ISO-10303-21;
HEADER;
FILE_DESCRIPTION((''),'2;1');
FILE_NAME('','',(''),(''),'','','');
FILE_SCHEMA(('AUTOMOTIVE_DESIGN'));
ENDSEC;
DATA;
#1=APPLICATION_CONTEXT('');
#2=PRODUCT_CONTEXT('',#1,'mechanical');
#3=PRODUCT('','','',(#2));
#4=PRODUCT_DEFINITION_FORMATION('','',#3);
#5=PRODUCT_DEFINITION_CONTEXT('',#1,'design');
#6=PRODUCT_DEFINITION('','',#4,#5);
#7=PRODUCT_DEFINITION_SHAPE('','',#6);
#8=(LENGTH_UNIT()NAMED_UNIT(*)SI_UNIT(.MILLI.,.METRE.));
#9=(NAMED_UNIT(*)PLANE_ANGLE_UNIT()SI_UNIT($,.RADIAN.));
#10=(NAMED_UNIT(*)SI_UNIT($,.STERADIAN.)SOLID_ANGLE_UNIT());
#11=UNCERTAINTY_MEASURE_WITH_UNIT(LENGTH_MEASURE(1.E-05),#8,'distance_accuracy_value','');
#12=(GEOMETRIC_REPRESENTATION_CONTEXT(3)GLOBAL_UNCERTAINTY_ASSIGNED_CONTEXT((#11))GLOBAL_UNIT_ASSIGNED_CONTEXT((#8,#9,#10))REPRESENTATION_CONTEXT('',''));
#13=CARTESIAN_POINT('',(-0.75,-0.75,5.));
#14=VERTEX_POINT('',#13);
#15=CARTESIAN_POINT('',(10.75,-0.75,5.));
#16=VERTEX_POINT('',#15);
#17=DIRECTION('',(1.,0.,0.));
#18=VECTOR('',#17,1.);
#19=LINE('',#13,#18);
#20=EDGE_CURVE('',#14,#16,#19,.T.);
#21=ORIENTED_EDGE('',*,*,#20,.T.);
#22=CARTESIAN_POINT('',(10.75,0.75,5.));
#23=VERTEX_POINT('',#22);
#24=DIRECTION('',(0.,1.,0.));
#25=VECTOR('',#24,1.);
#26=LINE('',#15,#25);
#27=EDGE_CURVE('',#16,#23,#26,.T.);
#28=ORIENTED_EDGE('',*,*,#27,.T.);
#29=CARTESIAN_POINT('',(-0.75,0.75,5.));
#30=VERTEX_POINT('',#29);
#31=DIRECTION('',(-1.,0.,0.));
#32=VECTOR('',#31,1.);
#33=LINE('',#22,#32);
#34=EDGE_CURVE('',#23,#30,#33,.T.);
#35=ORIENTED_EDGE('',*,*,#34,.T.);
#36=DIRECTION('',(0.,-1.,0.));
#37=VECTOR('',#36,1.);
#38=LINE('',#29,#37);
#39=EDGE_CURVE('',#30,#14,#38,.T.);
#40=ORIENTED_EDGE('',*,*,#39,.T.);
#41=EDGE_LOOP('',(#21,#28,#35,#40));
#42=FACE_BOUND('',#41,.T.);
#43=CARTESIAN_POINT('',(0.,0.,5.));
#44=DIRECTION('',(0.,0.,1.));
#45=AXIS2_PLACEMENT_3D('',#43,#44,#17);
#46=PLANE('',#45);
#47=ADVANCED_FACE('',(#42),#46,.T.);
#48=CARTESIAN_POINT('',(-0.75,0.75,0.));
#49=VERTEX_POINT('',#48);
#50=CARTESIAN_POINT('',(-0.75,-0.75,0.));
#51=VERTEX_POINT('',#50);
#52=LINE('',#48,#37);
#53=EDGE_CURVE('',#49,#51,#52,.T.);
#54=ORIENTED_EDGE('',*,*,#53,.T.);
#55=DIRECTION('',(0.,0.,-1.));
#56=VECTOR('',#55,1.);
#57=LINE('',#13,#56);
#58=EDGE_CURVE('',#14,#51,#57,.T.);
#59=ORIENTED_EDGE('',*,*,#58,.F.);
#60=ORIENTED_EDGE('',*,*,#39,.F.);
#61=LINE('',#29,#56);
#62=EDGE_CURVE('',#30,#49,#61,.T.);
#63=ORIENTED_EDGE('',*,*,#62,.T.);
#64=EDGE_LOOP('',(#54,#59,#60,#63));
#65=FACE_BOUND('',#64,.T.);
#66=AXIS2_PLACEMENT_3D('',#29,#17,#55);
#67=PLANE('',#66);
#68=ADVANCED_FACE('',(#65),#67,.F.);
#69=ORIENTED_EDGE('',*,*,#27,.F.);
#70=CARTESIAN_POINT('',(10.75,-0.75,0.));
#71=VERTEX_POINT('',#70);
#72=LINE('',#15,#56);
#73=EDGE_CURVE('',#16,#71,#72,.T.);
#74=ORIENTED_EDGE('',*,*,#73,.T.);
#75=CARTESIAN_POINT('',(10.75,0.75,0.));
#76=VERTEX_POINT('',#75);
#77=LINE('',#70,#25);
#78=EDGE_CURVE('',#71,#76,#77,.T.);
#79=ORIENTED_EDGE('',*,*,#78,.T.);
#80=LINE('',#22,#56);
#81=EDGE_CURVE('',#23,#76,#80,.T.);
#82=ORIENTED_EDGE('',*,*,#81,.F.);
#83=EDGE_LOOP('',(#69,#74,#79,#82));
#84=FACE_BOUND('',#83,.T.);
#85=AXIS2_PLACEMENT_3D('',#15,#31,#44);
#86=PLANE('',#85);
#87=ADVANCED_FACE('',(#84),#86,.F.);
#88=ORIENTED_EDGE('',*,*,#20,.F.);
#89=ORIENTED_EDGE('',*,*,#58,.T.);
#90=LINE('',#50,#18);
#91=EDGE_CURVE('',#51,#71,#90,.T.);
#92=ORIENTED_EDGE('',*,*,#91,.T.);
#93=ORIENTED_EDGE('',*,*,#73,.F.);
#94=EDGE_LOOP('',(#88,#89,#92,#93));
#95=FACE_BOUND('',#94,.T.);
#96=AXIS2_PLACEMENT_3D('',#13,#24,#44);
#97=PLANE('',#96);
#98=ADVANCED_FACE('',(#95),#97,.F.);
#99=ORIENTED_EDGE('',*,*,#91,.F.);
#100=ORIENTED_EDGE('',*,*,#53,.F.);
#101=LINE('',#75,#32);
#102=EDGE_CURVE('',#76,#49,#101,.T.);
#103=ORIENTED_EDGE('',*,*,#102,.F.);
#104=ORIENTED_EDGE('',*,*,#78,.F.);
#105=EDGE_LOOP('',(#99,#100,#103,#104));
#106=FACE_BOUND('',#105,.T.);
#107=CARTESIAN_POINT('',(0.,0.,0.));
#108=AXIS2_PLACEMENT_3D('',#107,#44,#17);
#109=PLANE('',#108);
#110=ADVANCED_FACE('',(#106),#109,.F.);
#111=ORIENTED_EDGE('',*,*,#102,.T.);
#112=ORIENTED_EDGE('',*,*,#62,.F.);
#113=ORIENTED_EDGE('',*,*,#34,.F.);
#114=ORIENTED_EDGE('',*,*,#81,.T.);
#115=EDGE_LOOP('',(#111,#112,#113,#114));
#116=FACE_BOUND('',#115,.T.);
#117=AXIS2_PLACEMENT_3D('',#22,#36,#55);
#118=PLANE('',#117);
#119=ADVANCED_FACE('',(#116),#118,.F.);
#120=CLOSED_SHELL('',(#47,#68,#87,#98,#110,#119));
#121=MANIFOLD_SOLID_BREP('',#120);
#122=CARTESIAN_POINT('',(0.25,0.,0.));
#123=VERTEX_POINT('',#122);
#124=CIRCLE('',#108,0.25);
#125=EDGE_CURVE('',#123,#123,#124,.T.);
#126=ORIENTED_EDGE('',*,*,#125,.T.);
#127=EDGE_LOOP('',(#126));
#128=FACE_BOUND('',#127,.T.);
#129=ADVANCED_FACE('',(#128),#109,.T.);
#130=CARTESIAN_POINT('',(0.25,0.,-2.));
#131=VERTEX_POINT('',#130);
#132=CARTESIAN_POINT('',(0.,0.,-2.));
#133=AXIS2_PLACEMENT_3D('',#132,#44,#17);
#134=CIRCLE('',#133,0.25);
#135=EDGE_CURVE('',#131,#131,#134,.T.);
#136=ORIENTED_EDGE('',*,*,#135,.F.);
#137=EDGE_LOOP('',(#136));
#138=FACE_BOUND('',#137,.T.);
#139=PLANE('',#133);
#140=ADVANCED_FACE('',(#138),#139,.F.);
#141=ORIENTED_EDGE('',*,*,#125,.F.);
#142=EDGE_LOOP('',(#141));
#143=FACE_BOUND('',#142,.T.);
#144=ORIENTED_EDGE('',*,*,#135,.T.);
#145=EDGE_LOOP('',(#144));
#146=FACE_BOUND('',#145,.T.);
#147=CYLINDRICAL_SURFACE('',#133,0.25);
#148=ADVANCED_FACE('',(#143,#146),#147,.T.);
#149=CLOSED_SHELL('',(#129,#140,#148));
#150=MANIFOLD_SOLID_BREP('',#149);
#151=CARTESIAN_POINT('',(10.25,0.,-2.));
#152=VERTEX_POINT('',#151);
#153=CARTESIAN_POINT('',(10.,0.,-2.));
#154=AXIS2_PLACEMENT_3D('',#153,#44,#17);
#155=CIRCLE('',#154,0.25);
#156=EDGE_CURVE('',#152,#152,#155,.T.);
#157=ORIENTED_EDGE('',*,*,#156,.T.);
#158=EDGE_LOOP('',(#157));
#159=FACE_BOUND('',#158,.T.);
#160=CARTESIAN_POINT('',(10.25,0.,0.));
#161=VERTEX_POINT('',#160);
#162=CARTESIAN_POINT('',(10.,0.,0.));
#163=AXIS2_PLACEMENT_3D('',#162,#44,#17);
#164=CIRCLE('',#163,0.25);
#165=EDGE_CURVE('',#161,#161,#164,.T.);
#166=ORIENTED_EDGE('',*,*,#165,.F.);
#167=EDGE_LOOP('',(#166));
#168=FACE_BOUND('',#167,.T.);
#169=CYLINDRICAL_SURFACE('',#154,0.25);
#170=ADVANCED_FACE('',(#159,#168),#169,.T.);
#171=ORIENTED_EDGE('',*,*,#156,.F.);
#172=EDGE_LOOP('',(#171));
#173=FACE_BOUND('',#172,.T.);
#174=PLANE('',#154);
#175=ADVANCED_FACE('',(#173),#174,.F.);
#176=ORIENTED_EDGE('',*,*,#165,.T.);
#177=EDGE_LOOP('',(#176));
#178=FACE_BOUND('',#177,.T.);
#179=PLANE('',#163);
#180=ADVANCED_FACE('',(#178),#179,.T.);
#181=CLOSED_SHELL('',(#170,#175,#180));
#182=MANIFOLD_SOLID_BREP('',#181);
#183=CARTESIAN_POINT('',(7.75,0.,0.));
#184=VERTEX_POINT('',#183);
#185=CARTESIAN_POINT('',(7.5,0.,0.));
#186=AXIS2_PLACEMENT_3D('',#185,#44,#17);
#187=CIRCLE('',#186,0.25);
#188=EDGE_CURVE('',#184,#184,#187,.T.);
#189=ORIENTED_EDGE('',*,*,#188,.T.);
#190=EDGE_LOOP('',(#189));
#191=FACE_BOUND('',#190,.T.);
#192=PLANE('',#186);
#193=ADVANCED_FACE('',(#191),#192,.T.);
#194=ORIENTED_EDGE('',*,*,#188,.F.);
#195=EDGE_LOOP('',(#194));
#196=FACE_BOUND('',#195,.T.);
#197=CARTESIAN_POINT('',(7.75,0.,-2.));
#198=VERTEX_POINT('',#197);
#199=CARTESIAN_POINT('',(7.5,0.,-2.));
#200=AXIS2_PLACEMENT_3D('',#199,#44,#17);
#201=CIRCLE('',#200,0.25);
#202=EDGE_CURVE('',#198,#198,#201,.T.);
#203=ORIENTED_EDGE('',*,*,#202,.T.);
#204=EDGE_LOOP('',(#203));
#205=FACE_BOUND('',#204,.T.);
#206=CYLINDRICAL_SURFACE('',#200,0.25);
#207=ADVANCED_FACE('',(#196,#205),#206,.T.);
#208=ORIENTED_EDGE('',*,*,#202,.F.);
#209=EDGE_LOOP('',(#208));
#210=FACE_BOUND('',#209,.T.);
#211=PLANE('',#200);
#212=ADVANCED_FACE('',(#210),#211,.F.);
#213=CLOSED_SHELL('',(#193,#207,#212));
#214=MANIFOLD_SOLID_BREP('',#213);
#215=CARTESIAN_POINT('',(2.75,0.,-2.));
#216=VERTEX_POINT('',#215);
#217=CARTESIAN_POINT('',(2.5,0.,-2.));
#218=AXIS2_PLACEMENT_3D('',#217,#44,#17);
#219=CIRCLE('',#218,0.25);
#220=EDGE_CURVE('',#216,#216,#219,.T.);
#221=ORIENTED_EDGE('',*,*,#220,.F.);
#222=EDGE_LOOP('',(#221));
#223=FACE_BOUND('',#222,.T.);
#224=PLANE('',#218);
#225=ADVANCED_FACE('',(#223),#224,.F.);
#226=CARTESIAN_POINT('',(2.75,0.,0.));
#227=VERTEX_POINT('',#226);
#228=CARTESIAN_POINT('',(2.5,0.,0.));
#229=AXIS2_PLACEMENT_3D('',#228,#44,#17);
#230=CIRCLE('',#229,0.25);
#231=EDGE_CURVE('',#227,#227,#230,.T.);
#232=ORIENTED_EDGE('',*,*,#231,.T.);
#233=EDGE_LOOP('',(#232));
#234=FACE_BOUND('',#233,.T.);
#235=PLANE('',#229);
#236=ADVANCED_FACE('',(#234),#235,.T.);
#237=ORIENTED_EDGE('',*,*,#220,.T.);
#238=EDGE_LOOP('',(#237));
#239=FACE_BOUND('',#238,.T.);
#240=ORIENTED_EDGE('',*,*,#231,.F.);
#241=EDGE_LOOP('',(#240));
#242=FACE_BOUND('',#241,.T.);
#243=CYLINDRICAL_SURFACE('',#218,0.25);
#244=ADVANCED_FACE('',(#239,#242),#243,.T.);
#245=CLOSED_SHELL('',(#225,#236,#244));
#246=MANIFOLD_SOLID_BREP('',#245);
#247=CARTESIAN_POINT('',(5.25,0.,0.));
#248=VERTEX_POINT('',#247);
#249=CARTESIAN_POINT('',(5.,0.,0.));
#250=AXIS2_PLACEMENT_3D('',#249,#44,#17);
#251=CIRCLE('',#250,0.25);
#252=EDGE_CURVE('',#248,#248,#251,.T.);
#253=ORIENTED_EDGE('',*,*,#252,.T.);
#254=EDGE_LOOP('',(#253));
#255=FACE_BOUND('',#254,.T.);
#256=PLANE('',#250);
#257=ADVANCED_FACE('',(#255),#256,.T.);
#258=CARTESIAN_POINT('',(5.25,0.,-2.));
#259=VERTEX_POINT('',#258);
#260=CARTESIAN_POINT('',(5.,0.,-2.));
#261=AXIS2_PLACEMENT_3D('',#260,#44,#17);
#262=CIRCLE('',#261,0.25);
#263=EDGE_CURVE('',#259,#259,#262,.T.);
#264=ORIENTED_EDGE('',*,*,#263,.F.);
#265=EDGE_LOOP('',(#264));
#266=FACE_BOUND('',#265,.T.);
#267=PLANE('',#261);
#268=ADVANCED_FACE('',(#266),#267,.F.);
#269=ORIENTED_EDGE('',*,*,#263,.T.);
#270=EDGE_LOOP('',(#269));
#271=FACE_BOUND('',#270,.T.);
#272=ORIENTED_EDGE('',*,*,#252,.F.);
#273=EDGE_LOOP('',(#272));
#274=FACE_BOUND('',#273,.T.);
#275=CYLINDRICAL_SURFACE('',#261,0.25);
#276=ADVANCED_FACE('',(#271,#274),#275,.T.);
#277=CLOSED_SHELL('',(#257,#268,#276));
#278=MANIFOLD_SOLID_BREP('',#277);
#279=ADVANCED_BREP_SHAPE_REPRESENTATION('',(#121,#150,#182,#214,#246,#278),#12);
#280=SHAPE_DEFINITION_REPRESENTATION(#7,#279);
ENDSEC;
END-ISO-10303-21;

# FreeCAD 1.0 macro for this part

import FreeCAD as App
import Part
import Sketcher

doc = App.newDocument("Part")
params = doc.addObject("Spreadsheet::Sheet", "Params")
for row, (alias, value) in enumerate([
    ("sketch1_width", "11.5 mm"),
    ("sketch1_height", "1.5 mm"),
    ("pad1_length", "5 mm"),
    ("sketch2_diameter", "0.5 mm"),
    ("pad2_length", "2 mm"),
    ("sketch3_diameter", "0.5 mm"),
    ("pad3_length", "2 mm"),
    ("sketch4_diameter", "0.5 mm"),
    ("pad4_length", "2 mm"),
    ("sketch5_diameter", "0.5 mm"),
    ("pad5_length", "2 mm"),
    ("sketch6_diameter", "0.5 mm"),
    ("pad6_length", "2 mm"),
], start=1):
    params.set(f"A{row}", alias)
    params.set(f"B{row}", "=" + value)
    params.setAlias(f"B{row}", alias)

body = doc.addObject("PartDesign::Body", "Body")

# Sketch on XY plane
sketch1 = body.newObject("Sketcher::SketchObject", "Sketch")
sketch1.AttachmentSupport = (doc.getObject("XY_Plane"), [""])
sketch1.MapMode = "FlatFace"
sketch1.addGeometry([
    Part.LineSegment(App.Vector(-0.75, 0.75, 0), App.Vector(-0.75, -0.75, 0)),
    Part.LineSegment(App.Vector(-0.75, -0.75, 0), App.Vector(10.75, -0.75, 0)),
    Part.LineSegment(App.Vector(10.75, -0.75, 0), App.Vector(10.75, 0.75, 0)),
    Part.LineSegment(App.Vector(10.75, 0.75, 0), App.Vector(-0.75, 0.75, 0)),
], False)
sketch1.addConstraint([
    Sketcher.Constraint("Coincident", 0, 2, 1, 1),
    Sketcher.Constraint("Coincident", 1, 2, 2, 1),
    Sketcher.Constraint("Coincident", 2, 2, 3, 1),
    Sketcher.Constraint("Coincident", 3, 2, 0, 1),
    Sketcher.Constraint("Vertical", 0),
    Sketcher.Constraint("Horizontal", 1),
    Sketcher.Constraint("Vertical", 2),
    Sketcher.Constraint("Horizontal", 3),
    Sketcher.Constraint("DistanceX", 1, 1, 1, 2, 11.5),
    Sketcher.Constraint("DistanceY", 0, 2, 0, 1, 1.5),
    Sketcher.Constraint("DistanceX", 0, 2, -1, 1, 0.75),
    Sketcher.Constraint("DistanceY", 0, 2, -1, 1, 0.75),
])
sketch1.setExpression("Constraints[8]", "Params.sketch1_width")
sketch1.setExpression("Constraints[9]", "Params.sketch1_height")
pad1 = body.newObject("PartDesign::Pad", "Pad")
pad1.Profile = sketch1
pad1.setExpression("Length", "Params.pad1_length")
body2 = doc.addObject("PartDesign::Body", "Body001")

# Sketch on XY plane
sketch2 = body2.newObject("Sketcher::SketchObject", "Sketch001")
sketch2.AttachmentSupport = (doc.getObject("XY_Plane001"), [""])
sketch2.MapMode = "FlatFace"
sketch2.addGeometry(Part.Circle(App.Vector(0, 0, 0), App.Vector(0, 0, 1), 0.25), False)
sketch2.addConstraint([
    Sketcher.Constraint("Coincident", 0, 3, -1, 1),
    Sketcher.Constraint("Diameter", 0, 0.5),
])
sketch2.setExpression("Constraints[1]", "Params.sketch2_diameter")
pad2 = body2.newObject("PartDesign::Pad", "Pad001")
pad2.Profile = sketch2
pad2.setExpression("Length", "Params.pad2_length")
pad2.Reversed = True
body3 = doc.addObject("PartDesign::Body", "Body002")

# Sketch on XY plane
sketch3 = body3.newObject("Sketcher::SketchObject", "Sketch002")
sketch3.AttachmentSupport = (doc.getObject("XY_Plane002"), [""])
sketch3.MapMode = "FlatFace"
sketch3.addGeometry(Part.Circle(App.Vector(2.5, 0, 0), App.Vector(0, 0, 1), 0.25), False)
sketch3.addConstraint([
    Sketcher.Constraint("PointOnObject", 0, 3, -1),
    Sketcher.Constraint("Diameter", 0, 0.5),
    Sketcher.Constraint("DistanceX", -1, 1, 0, 3, 2.5),
])
sketch3.setExpression("Constraints[1]", "Params.sketch3_diameter")
pad3 = body3.newObject("PartDesign::Pad", "Pad002")
pad3.Profile = sketch3
pad3.setExpression("Length", "Params.pad3_length")
pad3.Reversed = True
body4 = doc.addObject("PartDesign::Body", "Body003")

# Sketch on XY plane
sketch4 = body4.newObject("Sketcher::SketchObject", "Sketch003")
sketch4.AttachmentSupport = (doc.getObject("XY_Plane003"), [""])
sketch4.MapMode = "FlatFace"
sketch4.addGeometry(Part.Circle(App.Vector(5, 0, 0), App.Vector(0, 0, 1), 0.25), False)
sketch4.addConstraint([
    Sketcher.Constraint("PointOnObject", 0, 3, -1),
    Sketcher.Constraint("Diameter", 0, 0.5),
    Sketcher.Constraint("DistanceX", -1, 1, 0, 3, 5.0),
])
sketch4.setExpression("Constraints[1]", "Params.sketch4_diameter")
pad4 = body4.newObject("PartDesign::Pad", "Pad003")
pad4.Profile = sketch4
pad4.setExpression("Length", "Params.pad4_length")
pad4.Reversed = True
body5 = doc.addObject("PartDesign::Body", "Body004")

# Sketch on XY plane
sketch5 = body5.newObject("Sketcher::SketchObject", "Sketch004")
sketch5.AttachmentSupport = (doc.getObject("XY_Plane004"), [""])
sketch5.MapMode = "FlatFace"
sketch5.addGeometry(Part.Circle(App.Vector(7.5, 0, 0), App.Vector(0, 0, 1), 0.25), False)
sketch5.addConstraint([
    Sketcher.Constraint("PointOnObject", 0, 3, -1),
    Sketcher.Constraint("Diameter", 0, 0.5),
    Sketcher.Constraint("DistanceX", -1, 1, 0, 3, 7.5),
])
sketch5.setExpression("Constraints[1]", "Params.sketch5_diameter")
pad5 = body5.newObject("PartDesign::Pad", "Pad004")
pad5.Profile = sketch5
pad5.setExpression("Length", "Params.pad5_length")
pad5.Reversed = True
body6 = doc.addObject("PartDesign::Body", "Body005")

# Sketch on XY plane
sketch6 = body6.newObject("Sketcher::SketchObject", "Sketch005")
sketch6.AttachmentSupport = (doc.getObject("XY_Plane005"), [""])
sketch6.MapMode = "FlatFace"
sketch6.addGeometry(Part.Circle(App.Vector(10, 0, 0), App.Vector(0, 0, 1), 0.25), False)
sketch6.addConstraint([
    Sketcher.Constraint("PointOnObject", 0, 3, -1),
    Sketcher.Constraint("Diameter", 0, 0.5),
    Sketcher.Constraint("DistanceX", -1, 1, 0, 3, 10.0),
])
sketch6.setExpression("Constraints[1]", "Params.sketch6_diameter")
pad6 = body6.newObject("PartDesign::Pad", "Pad005")
pad6.Profile = sketch6
pad6.setExpression("Length", "Params.pad6_length")
pad6.Reversed = True

doc.recompute()
